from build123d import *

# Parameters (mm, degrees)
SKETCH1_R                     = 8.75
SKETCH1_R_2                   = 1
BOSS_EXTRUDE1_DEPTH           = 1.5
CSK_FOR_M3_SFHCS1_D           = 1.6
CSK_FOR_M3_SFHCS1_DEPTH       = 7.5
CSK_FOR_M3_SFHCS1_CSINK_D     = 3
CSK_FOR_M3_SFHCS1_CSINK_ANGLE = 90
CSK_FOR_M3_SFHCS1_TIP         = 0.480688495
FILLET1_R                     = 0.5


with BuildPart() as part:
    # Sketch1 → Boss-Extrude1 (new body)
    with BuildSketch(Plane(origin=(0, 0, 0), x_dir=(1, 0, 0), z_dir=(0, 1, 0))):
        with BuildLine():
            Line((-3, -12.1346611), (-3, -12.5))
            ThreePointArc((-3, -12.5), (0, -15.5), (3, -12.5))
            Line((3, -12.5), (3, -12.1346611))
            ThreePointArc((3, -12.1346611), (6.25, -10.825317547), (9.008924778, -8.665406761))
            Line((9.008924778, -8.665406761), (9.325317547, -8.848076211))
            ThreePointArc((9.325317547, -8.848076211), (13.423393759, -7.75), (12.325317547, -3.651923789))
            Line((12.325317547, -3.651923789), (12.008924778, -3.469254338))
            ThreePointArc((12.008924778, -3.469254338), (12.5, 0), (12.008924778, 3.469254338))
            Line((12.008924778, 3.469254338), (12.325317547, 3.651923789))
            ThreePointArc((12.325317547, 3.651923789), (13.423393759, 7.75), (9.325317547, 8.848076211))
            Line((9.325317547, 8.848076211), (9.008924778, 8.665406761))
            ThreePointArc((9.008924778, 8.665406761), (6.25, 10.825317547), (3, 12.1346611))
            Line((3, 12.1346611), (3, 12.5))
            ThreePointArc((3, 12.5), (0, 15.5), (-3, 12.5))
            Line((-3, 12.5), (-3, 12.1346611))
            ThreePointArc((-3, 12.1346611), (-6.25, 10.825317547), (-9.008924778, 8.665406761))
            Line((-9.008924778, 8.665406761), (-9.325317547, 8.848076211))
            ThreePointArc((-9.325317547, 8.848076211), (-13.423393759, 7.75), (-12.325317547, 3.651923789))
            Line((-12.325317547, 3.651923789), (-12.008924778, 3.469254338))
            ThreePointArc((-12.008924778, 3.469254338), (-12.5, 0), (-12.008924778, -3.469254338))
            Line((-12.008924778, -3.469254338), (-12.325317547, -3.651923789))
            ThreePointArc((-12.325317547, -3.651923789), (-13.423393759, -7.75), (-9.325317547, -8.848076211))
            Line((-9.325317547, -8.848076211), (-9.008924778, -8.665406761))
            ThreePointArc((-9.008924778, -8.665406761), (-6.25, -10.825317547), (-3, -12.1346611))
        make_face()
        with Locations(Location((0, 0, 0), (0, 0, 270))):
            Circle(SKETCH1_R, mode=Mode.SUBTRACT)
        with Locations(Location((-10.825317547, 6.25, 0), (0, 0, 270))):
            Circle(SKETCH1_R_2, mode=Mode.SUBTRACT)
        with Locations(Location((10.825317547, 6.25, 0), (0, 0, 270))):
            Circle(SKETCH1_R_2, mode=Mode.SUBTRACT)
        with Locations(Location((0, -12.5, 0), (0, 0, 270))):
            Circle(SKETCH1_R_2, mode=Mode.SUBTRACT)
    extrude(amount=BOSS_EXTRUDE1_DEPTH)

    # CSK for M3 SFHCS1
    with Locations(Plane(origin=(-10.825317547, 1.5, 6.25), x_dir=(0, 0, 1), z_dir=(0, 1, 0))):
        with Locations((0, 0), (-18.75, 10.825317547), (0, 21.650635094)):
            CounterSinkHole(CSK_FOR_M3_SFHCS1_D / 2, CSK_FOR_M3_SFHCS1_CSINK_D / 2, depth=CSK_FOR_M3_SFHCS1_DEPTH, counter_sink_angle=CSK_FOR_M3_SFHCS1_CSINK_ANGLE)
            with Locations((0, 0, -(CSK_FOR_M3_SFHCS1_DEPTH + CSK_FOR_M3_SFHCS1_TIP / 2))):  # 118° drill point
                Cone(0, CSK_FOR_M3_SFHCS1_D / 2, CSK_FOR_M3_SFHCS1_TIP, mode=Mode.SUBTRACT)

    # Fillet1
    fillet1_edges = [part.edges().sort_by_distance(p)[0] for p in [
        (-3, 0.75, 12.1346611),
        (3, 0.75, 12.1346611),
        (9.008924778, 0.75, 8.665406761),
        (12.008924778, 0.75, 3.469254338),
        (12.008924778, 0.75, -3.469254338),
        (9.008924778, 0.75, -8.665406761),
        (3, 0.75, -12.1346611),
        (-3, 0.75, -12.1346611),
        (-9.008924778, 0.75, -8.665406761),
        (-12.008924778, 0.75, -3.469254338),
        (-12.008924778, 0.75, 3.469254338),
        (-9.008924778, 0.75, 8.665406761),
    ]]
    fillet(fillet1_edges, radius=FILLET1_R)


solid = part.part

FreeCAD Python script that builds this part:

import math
import FreeCAD as App
import Part
import Sketcher

V = App.Vector
Q = App.Units.Quantity


def edges_at(feature, points):
    """Names of the edges that pass closest to the given points."""
    edges = feature.Shape.Edges
    near = lambda p: min(range(len(edges)), key=lambda i: edges[i].distToShape(Part.Vertex(*p))[0])
    return sorted({f"Edge{near(p) + 1}" for p in points})

doc = App.newDocument("Part")
body = doc.addObject("PartDesign::Body", "Body")

sketch1 = doc.addObject("Sketcher::SketchObject", "Sketch")
body.addObject(sketch1)
sketch1.AttachmentSupport = (doc.XZ_Plane, [""])
sketch1.MapMode = "FlatFace"
sketch1.addGeometry([
    Part.LineSegment(V(-3, 12.13, 0), V(-3, 12.5, 0)),
    Part.ArcOfCircle(Part.Circle(V(0, 12.5, 0), V(0, 0, 1), 3), math.radians(0), math.radians(180)),
    Part.LineSegment(V(3, 12.5, 0), V(3, 12.13, 0)),
    Part.ArcOfCircle(Part.Circle(V(0, 0, 0), V(0, 0, 1), 12.5), math.radians(44), math.radians(76)),
    Part.LineSegment(V(9.01, 8.67, 0), V(9.33, 8.85, 0)),
    Part.ArcOfCircle(Part.Circle(V(10.83, 6.25, 0), V(0, 0, 1), 3), math.radians(-60), math.radians(120)),
    Part.LineSegment(V(12.33, 3.65, 0), V(12.01, 3.47, 0)),
    Part.ArcOfCircle(Part.Circle(V(0, 0, 0), V(0, 0, 1), 12.5), math.radians(-16), math.radians(16)),
    Part.LineSegment(V(12.01, -3.47, 0), V(12.33, -3.65, 0)),
    Part.ArcOfCircle(Part.Circle(V(10.83, -6.25, 0), V(0, 0, 1), 3), math.radians(-120), math.radians(60)),
    Part.LineSegment(V(9.33, -8.85, 0), V(9.01, -8.67, 0)),
    Part.ArcOfCircle(Part.Circle(V(0, 0, 0), V(0, 0, 1), 12.5), math.radians(-76), math.radians(-44)),
    Part.LineSegment(V(3, -12.13, 0), V(3, -12.5, 0)),
    Part.ArcOfCircle(Part.Circle(V(0, -12.5, 0), V(0, 0, 1), 3), math.radians(180), math.radians(360)),
    Part.LineSegment(V(-3, -12.5, 0), V(-3, -12.13, 0)),
    Part.ArcOfCircle(Part.Circle(V(0, 0, 0), V(0, 0, 1), 12.5), math.radians(-136), math.radians(-104)),
    Part.LineSegment(V(-9.01, -8.67, 0), V(-9.33, -8.85, 0)),
    Part.ArcOfCircle(Part.Circle(V(-10.83, -6.25, 0), V(0, 0, 1), 3), math.radians(120), math.radians(300)),
    Part.LineSegment(V(-12.33, -3.65, 0), V(-12.01, -3.47, 0)),
    Part.ArcOfCircle(Part.Circle(V(0, 0, 0), V(0, 0, 1), 12.5), math.radians(164), math.radians(196)),
    Part.LineSegment(V(-12.01, 3.47, 0), V(-12.33, 3.65, 0)),
    Part.ArcOfCircle(Part.Circle(V(-10.83, 6.25, 0), V(0, 0, 1), 3), math.radians(60), math.radians(240)),
    Part.LineSegment(V(-9.33, 8.85, 0), V(-9.01, 8.67, 0)),
    Part.ArcOfCircle(Part.Circle(V(0, 0, 0), V(0, 0, 1), 12.5), math.radians(104), math.radians(136)),
    Part.Circle(V(0, 12.5, 0), V(0, 0, 1), 1),
    Part.Circle(V(0, 0, 0), V(0, 0, 1), 8.75),
    Part.Circle(V(-10.83, -6.25, 0), V(0, 0, 1), 1),
    Part.Circle(V(10.83, -6.25, 0), V(0, 0, 1), 1),
], False)
sketch1.addConstraint([
    Sketcher.Constraint("Tangent", 0, 2, 1, 2),
    Sketcher.Constraint("Tangent", 1, 1, 2, 1),
    Sketcher.Constraint("Coincident", 2, 2, 3, 2),
    Sketcher.Constraint("Coincident", 3, 1, 4, 1),
    Sketcher.Constraint("Tangent", 4, 2, 5, 2),
    Sketcher.Constraint("Tangent", 5, 1, 6, 1),
    Sketcher.Constraint("Coincident", 6, 2, 7, 2),
    Sketcher.Constraint("Coincident", 7, 1, 8, 1),
    Sketcher.Constraint("Tangent", 8, 2, 9, 2),
    Sketcher.Constraint("Tangent", 9, 1, 10, 1),
    Sketcher.Constraint("Coincident", 10, 2, 11, 2),
    Sketcher.Constraint("Coincident", 11, 1, 12, 1),
    Sketcher.Constraint("Tangent", 12, 2, 13, 2),
    Sketcher.Constraint("Tangent", 13, 1, 14, 1),
    Sketcher.Constraint("Coincident", 14, 2, 15, 2),
    Sketcher.Constraint("Coincident", 15, 1, 16, 1),
    Sketcher.Constraint("Tangent", 16, 2, 17, 2),
    Sketcher.Constraint("Tangent", 17, 1, 18, 1),
    Sketcher.Constraint("Coincident", 18, 2, 19, 2),
    Sketcher.Constraint("Coincident", 19, 1, 20, 1),
    Sketcher.Constraint("Tangent", 20, 2, 21, 2),
    Sketcher.Constraint("Tangent", 21, 1, 22, 1),
    Sketcher.Constraint("Coincident", 22, 2, 23, 2),
    Sketcher.Constraint("Coincident", 23, 1, 0, 1),
    Sketcher.Constraint("Vertical", 0),
    Sketcher.Constraint("Vertical", 2),
    Sketcher.Constraint("Vertical", 12),
    Sketcher.Constraint("Vertical", 14),
    Sketcher.Constraint("Coincident", 3, 3, -1, 1),
    Sketcher.Constraint("Coincident", 7, 3, -1, 1),
    Sketcher.Constraint("Coincident", 11, 3, -1, 1),
    Sketcher.Constraint("Coincident", 15, 3, -1, 1),
    Sketcher.Constraint("Coincident", 19, 3, -1, 1),
    Sketcher.Constraint("Coincident", 23, 3, -1, 1),
    Sketcher.Constraint("Coincident", 25, 3, -1, 1),
    Sketcher.Constraint("Coincident", 24, 3, 1, 3),
    Sketcher.Constraint("Coincident", 26, 3, 17, 3),
    Sketcher.Constraint("Coincident", 27, 3, 9, 3),
    Sketcher.Constraint("Equal", 1, 5),
    Sketcher.Constraint("Equal", 3, 7),
    Sketcher.Constraint("Equal", 5, 9),
    Sketcher.Constraint("Equal", 7, 11),
    Sketcher.Constraint("Equal", 9, 13),
    Sketcher.Constraint("Equal", 11, 15),
    Sketcher.Constraint("Equal", 13, 17),
    Sketcher.Constraint("Equal", 15, 19),
    Sketcher.Constraint("Equal", 17, 21),
    Sketcher.Constraint("Equal", 19, 23),
    Sketcher.Constraint("Equal", 24, 26),
    Sketcher.Constraint("Equal", 26, 27),
    Sketcher.Constraint("Symmetric", 1, 3, 13, 3, -1, 1),
    Sketcher.Constraint("Symmetric", 5, 3, 17, 3, -1, 1),
    Sketcher.Constraint("Symmetric", 9, 3, 21, 3, -1, 1),
    Sketcher.Constraint("Symmetric", 9, 3, 17, 3, -2),
    Sketcher.Constraint("PointOnObject", 1, 3, -2),
    Sketcher.Constraint("Parallel", 4, 6),
    Sketcher.Constraint("Parallel", 8, 10),
    Sketcher.Constraint("Parallel", 6, 16),
    Sketcher.Constraint("Parallel", 16, 18),
    Sketcher.Constraint("Parallel", 10, 20),
    Sketcher.Constraint("Parallel", 20, 22),
    Sketcher.Constraint("Horizontal", 10, 2, 15, 1),
    Sketcher.Constraint("Equal", 4, 6),
    Sketcher.Constraint("Diameter", 24, Q("2 mm")),
    Sketcher.Constraint("Radius", 1, Q("3 mm")),
    Sketcher.Constraint("Diameter", 25, Q("17.5 mm")),
    Sketcher.Constraint("Radius", 3, Q("12.5 mm")),
    Sketcher.Constraint("Angle", 4, Q("30 deg")),
    Sketcher.Constraint("DistanceY", -1, 1, 1, 3, Q("12.5 mm")),
    Sketcher.Constraint("DistanceY", 9, 3, 5, 3, Q("12.5 mm")),
])
pad1 = doc.addObject("PartDesign::Pad", "Pad")
body.addObject(pad1)
pad1.Profile = sketch1
pad1.Length = 1.5
pad1.Reversed = True

sketch2 = doc.addObject("Sketcher::SketchObject", "Sketch001")
body.addObject(sketch2)
sketch2.AttachmentSupport = (doc.XZ_Plane, [""])
sketch2.MapMode = "FlatFace"
sketch2.AttachmentOffset = App.Placement(V(0, 0, -1.5), App.Rotation())
sketch2.addGeometry([
    Part.Circle(V(-10.8, 6.2, 0), V(0, 0, 1), 0.8),
    Part.Circle(V(0, -12.5, 0), V(0, 0, 1), 0.8),
    Part.Circle(V(10.8, 6.2, 0), V(0, 0, 1), 0.8),
], False)
sketch2.addConstraint([
    Sketcher.Constraint("Equal", 0, 1),
    Sketcher.Constraint("Equal", 1, 2),
    Sketcher.Constraint("Symmetric", 0, 3, 2, 3, -2),
    Sketcher.Constraint("PointOnObject", 1, 3, -2),
    Sketcher.Constraint("Diameter", 0, Q("1.6 mm")),
    Sketcher.Constraint("DistanceY", 1, 3, -1, 1, Q("12.5 mm")),
    Sketcher.Constraint("DistanceY", -1, 1, 0, 3, Q("6.25 mm")),
    Sketcher.Constraint("DistanceX", 0, 3, -1, 1, Q("10.825318 mm")),
])
doc.recompute()
hole = doc.addObject("PartDesign::Hole", "Hole")
body.addObject(hole)
hole.Profile = sketch2
hole.ThreadType = "None"
hole.Diameter = 1.6
hole.DepthType = "Dimension"
hole.Depth = 7.5
hole.DrillPoint = "Angled"
hole.DrillPointAngle = 118
hole.HoleCutType = "Countersink"
hole.HoleCutDiameter = 3
hole.HoleCutCountersinkAngle = 90
hole.Reversed = True
doc.recompute()

fillet = doc.addObject("PartDesign::Fillet", "Fillet")
body.addObject(fillet)
fillet.Base = (hole, edges_at(hole, [
    (-3, 0.75, 12.135),
    (3, 0.75, 12.135),
    (9.009, 0.75, 8.665),
    (12.009, 0.75, 3.469),
    (12.009, 0.75, -3.469),
    (9.009, 0.75, -8.665),
    (3, 0.75, -12.135),
    (-3, 0.75, -12.135),
    (-9.009, 0.75, -8.665),
    (-12.009, 0.75, -3.469),
    (-12.009, 0.75, 3.469),
    (-9.009, 0.75, 8.665),
]))
fillet.Radius = 0.5

doc.recompute()
